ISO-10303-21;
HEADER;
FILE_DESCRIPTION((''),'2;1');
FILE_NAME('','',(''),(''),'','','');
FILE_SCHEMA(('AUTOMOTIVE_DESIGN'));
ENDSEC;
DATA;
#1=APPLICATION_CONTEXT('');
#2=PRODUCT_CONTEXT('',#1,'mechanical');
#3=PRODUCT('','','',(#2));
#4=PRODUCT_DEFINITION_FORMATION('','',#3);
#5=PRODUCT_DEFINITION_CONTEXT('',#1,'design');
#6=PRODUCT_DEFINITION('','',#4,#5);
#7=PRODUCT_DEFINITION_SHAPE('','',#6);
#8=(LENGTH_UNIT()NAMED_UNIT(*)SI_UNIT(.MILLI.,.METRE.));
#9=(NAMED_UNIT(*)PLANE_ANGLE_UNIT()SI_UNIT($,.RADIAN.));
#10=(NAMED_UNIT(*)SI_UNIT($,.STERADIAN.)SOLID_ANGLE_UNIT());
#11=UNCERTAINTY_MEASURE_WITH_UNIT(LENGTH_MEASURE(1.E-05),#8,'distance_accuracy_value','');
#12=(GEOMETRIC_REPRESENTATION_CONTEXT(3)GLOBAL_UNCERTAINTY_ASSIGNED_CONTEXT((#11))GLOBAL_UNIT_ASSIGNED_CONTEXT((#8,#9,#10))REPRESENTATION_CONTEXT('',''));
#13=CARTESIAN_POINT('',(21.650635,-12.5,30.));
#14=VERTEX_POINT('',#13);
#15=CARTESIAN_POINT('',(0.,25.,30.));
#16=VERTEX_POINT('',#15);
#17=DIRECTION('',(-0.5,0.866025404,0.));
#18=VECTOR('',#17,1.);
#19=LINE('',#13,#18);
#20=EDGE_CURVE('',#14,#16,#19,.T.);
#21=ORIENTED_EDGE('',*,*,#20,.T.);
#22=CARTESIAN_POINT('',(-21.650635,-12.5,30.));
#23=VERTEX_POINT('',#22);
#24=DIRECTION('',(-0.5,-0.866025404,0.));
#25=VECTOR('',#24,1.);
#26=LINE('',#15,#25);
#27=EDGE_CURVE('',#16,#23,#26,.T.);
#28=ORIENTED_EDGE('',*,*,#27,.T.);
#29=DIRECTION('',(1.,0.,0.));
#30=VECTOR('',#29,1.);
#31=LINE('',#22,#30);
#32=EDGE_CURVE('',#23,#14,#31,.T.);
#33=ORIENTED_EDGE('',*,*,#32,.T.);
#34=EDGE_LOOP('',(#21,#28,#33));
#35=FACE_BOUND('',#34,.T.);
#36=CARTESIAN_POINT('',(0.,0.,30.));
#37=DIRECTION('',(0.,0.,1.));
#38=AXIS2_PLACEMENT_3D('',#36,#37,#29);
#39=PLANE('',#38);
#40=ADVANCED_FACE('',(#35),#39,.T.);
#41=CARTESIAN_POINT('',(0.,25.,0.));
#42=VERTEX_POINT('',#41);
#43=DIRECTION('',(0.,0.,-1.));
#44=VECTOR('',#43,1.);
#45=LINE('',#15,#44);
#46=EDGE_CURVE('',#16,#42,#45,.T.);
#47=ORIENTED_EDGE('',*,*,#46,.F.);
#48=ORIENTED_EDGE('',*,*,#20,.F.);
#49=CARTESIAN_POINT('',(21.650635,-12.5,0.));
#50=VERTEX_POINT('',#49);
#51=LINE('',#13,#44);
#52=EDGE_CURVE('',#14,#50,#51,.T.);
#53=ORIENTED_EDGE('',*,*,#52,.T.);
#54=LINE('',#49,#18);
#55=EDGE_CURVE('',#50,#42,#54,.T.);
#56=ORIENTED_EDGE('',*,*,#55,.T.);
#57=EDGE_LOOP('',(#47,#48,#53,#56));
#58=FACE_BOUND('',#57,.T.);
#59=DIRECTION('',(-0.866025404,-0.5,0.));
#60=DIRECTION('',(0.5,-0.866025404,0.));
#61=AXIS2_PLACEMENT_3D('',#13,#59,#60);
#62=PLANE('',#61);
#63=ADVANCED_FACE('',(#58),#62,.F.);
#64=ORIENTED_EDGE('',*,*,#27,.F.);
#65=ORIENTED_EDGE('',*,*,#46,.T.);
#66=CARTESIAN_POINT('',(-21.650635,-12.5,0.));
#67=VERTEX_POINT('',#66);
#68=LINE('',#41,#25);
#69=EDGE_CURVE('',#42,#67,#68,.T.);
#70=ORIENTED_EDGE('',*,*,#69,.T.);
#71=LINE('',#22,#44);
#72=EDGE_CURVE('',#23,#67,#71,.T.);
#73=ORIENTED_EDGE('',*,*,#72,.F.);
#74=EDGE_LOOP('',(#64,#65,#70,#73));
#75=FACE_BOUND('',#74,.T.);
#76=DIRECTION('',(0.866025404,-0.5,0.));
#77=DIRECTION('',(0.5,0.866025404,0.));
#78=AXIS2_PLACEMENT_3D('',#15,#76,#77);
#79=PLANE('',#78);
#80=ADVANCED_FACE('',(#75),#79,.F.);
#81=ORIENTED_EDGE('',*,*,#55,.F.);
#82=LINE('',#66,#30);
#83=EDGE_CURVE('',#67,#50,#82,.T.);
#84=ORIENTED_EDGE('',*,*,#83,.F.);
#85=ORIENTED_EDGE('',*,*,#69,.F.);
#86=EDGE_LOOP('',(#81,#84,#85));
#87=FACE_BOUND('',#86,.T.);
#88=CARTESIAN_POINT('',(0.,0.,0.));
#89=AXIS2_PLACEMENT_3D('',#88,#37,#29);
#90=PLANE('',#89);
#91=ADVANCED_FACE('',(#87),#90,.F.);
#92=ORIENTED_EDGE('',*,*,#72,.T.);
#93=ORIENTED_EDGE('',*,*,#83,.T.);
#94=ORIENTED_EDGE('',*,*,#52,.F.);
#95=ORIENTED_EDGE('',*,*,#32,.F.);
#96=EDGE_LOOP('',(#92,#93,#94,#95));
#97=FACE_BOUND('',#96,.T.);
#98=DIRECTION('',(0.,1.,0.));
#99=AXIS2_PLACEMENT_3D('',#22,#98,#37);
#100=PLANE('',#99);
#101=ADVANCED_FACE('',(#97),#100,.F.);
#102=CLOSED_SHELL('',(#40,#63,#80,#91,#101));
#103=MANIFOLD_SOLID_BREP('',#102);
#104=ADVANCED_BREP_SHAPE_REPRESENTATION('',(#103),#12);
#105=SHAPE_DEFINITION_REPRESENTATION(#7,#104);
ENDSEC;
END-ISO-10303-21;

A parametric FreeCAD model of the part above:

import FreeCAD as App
import Part
import Sketcher
from FreeCAD import Vector
Q = App.Units.Quantity

doc = App.newDocument("Part")
body = doc.addObject("PartDesign::Body", "Body")

sketch1 = doc.addObject("Sketcher::SketchObject", "Sketch")
body.addObject(sketch1)
sketch1.AttachmentSupport = (doc.XY_Plane, [""])
sketch1.MapMode = "FlatFace"
sketch1.addGeometry([
    Part.LineSegment(Vector(0, 25, 0), Vector(-22, -12, 0)),
    Part.LineSegment(Vector(-22, -12, 0), Vector(22, -12, 0)),
    Part.LineSegment(Vector(22, -12, 0), Vector(0, 25, 0)),
], False)
sketch1.addConstraint([
    Sketcher.Constraint("Coincident", 0, 2, 1, 1),
    Sketcher.Constraint("Coincident", 1, 2, 2, 1),
    Sketcher.Constraint("Coincident", 2, 2, 0, 1),
    Sketcher.Constraint("Horizontal", 1),
    Sketcher.Constraint("PointOnObject", 2, 2, -2),
    Sketcher.Constraint("Equal", 0, 2),
    Sketcher.Constraint("Angle", 0, Q("-120 deg")),
    Sketcher.Constraint("DistanceY", -1, 1, 2, 2, 25.0),
    Sketcher.Constraint("DistanceY", 0, 2, -1, 1, 12.5),
])
pad1 = doc.addObject("PartDesign::Pad", "Pad")
body.addObject(pad1)
pad1.Profile = sketch1
pad1.Length = 30

doc.recompute()
